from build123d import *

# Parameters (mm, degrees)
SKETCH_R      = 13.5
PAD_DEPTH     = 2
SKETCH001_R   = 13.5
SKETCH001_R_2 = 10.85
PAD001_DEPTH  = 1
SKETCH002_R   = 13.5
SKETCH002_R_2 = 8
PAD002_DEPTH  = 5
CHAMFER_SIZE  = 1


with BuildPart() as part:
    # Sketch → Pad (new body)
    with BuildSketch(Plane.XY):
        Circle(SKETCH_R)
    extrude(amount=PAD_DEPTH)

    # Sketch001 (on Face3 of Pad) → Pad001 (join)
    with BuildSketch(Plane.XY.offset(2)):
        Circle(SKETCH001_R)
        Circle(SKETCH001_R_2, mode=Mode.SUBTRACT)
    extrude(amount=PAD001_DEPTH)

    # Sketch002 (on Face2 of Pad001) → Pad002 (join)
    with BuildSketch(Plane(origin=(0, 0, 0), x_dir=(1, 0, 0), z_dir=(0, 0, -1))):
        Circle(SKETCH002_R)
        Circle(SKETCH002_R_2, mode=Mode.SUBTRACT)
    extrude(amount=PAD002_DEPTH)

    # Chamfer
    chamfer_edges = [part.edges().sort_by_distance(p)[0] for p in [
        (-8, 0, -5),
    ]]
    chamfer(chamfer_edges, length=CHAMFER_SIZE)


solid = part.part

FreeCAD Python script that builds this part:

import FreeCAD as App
import Part
import Sketcher

V = App.Vector
Q = App.Units.Quantity


def edges_at(feature, points):
    """Names of the edges that pass closest to the given points."""
    edges = feature.Shape.Edges
    near = lambda p: min(range(len(edges)), key=lambda i: edges[i].distToShape(Part.Vertex(*p))[0])
    return sorted({f"Edge{near(p) + 1}" for p in points})

doc = App.newDocument("Part")
body = doc.addObject("PartDesign::Body", "Body")

# Sketch on XY plane
sketch1 = body.newObject("Sketcher::SketchObject", "Sketch")
sketch1.AttachmentSupport = (doc.getObject("XY_Plane"), [""])
sketch1.MapMode = "FlatFace"
sketch1.addGeometry(Part.Circle(V(0, 0, 0), V(0, 0, 1), 14), False)
sketch1.addConstraint([
    Sketcher.Constraint("Coincident", 0, 3, -1, 1),
    Sketcher.Constraint("Diameter", 0, Q("27 mm")),
])
pad1 = body.newObject("PartDesign::Pad", "Pad")
pad1.Profile = sketch1
pad1.Length = 2

# Sketch on XY plane
sketch2 = body.newObject("Sketcher::SketchObject", "Sketch001")
sketch2.AttachmentSupport = (doc.getObject("XY_Plane"), [""])
sketch2.MapMode = "FlatFace"
sketch2.AttachmentOffset = App.Placement(V(0, 0, 2), App.Rotation())
sketch2.addGeometry([
    Part.Circle(V(0, 0, 0), V(0, 0, 1), 14),
    Part.Circle(V(0, 0, 0), V(0, 0, 1), 11),
], False)
sketch2.addConstraint([
    Sketcher.Constraint("Coincident", 0, 3, -1, 1),
    Sketcher.Constraint("Coincident", 1, 3, -1, 1),
    Sketcher.Constraint("Diameter", 0, Q("27 mm")),
    Sketcher.Constraint("Diameter", 1, Q("21.7 mm")),
])
pad2 = body.newObject("PartDesign::Pad", "Pad001")
pad2.Profile = sketch2
pad2.Length = 1

# Sketch on XY plane
sketch3 = body.newObject("Sketcher::SketchObject", "Sketch002")
sketch3.AttachmentSupport = (doc.getObject("XY_Plane"), [""])
sketch3.MapMode = "FlatFace"
sketch3.addGeometry([
    Part.Circle(V(0, 0, 0), V(0, 0, 1), 14),
    Part.Circle(V(0, 0, 0), V(0, 0, 1), 8),
], False)
sketch3.addConstraint([
    Sketcher.Constraint("Coincident", 0, 3, -1, 1),
    Sketcher.Constraint("Coincident", 1, 3, -1, 1),
    Sketcher.Constraint("Diameter", 0, Q("27 mm")),
    Sketcher.Constraint("Diameter", 1, Q("16 mm")),
])
pad3 = body.newObject("PartDesign::Pad", "Pad002")
pad3.Profile = sketch3
pad3.Length = 5
pad3.Reversed = True
doc.recompute()

chamfer = body.newObject("PartDesign::Chamfer", "Chamfer")
chamfer.Base = (pad3, edges_at(pad3, [(-8, 0, -5)]))
chamfer.Size = 1

doc.recompute()
